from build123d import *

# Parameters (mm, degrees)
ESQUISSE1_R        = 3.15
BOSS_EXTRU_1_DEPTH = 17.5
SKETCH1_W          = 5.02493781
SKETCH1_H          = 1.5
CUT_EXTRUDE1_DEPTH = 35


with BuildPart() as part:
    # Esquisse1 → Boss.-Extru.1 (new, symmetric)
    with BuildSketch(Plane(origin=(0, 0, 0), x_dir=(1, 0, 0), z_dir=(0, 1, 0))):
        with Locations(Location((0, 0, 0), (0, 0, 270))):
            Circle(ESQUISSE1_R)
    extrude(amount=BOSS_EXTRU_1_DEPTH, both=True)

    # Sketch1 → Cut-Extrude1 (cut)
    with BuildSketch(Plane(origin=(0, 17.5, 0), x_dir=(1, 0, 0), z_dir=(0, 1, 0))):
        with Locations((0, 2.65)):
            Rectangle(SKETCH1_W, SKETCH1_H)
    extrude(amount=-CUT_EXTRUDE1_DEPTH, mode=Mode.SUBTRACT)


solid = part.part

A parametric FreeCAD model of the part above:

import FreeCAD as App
import Part
import Sketcher
Q = App.Units.Quantity

doc = App.newDocument("Part")
params = doc.addObject("Spreadsheet::Sheet", "Params")
for row, (alias, value) in enumerate([
    ("sketch1_diameter", "6.3 mm"),
    ("pad1_length", "35 mm"),
    ("sketch2_height", "1.5 mm"),
    ("pocket1_length", "35 mm"),
], start=1):
    params.set(f"A{row}", alias)
    params.set(f"B{row}", "=" + value)
    params.setAlias(f"B{row}", alias)

body = doc.addObject("PartDesign::Body", "Body")

# Sketch on XZ plane
sketch1 = body.newObject("Sketcher::SketchObject", "Sketch")
sketch1.AttachmentSupport = (doc.getObject("XZ_Plane"), [""])
sketch1.MapMode = "FlatFace"
sketch1.addGeometry(Part.Circle(App.Vector(0, 0, 0), App.Vector(0, 0, 1), 3.15), False)
sketch1.addConstraint([
    Sketcher.Constraint("Coincident", 0, 3, -1, 1),
    Sketcher.Constraint("Diameter", 0, Q("6.3 mm")),
])
sketch1.setExpression("Constraints[1]", "Params.sketch1_diameter")
pad1 = body.newObject("PartDesign::Pad", "Pad")
pad1.Profile = sketch1
pad1.setExpression("Length", "Params.pad1_length")
pad1.Midplane = True

# Sketch on XZ plane
sketch2 = body.newObject("Sketcher::SketchObject", "Sketch001")
sketch2.AttachmentSupport = (doc.getObject("XZ_Plane"), [""])
sketch2.MapMode = "FlatFace"
sketch2.AttachmentOffset = App.Placement(App.Vector(0, 0, -17.5), App.Rotation())
sketch2.addGeometry([
    Part.LineSegment(App.Vector(-2.512469, -3.4, 0), App.Vector(-2.512469, -1.9, 0)),
    Part.LineSegment(App.Vector(-2.512469, -1.9, 0), App.Vector(2.512469, -1.9, 0)),
    Part.LineSegment(App.Vector(2.512469, -1.9, 0), App.Vector(2.512469, -3.4, 0)),
    Part.LineSegment(App.Vector(2.512469, -3.4, 0), App.Vector(-2.512469, -3.4, 0)),
], False)
sketch2.addConstraint([
    Sketcher.Constraint("Coincident", 0, 2, 1, 1),
    Sketcher.Constraint("Coincident", 1, 2, 2, 1),
    Sketcher.Constraint("Coincident", 2, 2, 3, 1),
    Sketcher.Constraint("Coincident", 3, 2, 0, 1),
    Sketcher.Constraint("Vertical", 0),
    Sketcher.Constraint("Horizontal", 1),
    Sketcher.Constraint("Vertical", 2),
    Sketcher.Constraint("Horizontal", 3),
    Sketcher.Constraint("DistanceY", 0, 1, 0, 2, Q("1.5 mm")),
    Sketcher.Constraint("DistanceY", 0, 2, -1, 1, Q("1.9 mm")),
    Sketcher.Constraint("DistanceX", 1, 1, 1, 2, Q("5.024938 mm")),
    Sketcher.Constraint("DistanceX", 0, 2, -1, 1, Q("2.512469 mm")),
])
sketch2.setExpression("Constraints[8]", "Params.sketch2_height")
pocket1 = body.newObject("PartDesign::Pocket", "Pocket")
pocket1.Profile = sketch2
pocket1.setExpression("Length", "Params.pocket1_length")
pocket1.Reversed = True

doc.recompute()
